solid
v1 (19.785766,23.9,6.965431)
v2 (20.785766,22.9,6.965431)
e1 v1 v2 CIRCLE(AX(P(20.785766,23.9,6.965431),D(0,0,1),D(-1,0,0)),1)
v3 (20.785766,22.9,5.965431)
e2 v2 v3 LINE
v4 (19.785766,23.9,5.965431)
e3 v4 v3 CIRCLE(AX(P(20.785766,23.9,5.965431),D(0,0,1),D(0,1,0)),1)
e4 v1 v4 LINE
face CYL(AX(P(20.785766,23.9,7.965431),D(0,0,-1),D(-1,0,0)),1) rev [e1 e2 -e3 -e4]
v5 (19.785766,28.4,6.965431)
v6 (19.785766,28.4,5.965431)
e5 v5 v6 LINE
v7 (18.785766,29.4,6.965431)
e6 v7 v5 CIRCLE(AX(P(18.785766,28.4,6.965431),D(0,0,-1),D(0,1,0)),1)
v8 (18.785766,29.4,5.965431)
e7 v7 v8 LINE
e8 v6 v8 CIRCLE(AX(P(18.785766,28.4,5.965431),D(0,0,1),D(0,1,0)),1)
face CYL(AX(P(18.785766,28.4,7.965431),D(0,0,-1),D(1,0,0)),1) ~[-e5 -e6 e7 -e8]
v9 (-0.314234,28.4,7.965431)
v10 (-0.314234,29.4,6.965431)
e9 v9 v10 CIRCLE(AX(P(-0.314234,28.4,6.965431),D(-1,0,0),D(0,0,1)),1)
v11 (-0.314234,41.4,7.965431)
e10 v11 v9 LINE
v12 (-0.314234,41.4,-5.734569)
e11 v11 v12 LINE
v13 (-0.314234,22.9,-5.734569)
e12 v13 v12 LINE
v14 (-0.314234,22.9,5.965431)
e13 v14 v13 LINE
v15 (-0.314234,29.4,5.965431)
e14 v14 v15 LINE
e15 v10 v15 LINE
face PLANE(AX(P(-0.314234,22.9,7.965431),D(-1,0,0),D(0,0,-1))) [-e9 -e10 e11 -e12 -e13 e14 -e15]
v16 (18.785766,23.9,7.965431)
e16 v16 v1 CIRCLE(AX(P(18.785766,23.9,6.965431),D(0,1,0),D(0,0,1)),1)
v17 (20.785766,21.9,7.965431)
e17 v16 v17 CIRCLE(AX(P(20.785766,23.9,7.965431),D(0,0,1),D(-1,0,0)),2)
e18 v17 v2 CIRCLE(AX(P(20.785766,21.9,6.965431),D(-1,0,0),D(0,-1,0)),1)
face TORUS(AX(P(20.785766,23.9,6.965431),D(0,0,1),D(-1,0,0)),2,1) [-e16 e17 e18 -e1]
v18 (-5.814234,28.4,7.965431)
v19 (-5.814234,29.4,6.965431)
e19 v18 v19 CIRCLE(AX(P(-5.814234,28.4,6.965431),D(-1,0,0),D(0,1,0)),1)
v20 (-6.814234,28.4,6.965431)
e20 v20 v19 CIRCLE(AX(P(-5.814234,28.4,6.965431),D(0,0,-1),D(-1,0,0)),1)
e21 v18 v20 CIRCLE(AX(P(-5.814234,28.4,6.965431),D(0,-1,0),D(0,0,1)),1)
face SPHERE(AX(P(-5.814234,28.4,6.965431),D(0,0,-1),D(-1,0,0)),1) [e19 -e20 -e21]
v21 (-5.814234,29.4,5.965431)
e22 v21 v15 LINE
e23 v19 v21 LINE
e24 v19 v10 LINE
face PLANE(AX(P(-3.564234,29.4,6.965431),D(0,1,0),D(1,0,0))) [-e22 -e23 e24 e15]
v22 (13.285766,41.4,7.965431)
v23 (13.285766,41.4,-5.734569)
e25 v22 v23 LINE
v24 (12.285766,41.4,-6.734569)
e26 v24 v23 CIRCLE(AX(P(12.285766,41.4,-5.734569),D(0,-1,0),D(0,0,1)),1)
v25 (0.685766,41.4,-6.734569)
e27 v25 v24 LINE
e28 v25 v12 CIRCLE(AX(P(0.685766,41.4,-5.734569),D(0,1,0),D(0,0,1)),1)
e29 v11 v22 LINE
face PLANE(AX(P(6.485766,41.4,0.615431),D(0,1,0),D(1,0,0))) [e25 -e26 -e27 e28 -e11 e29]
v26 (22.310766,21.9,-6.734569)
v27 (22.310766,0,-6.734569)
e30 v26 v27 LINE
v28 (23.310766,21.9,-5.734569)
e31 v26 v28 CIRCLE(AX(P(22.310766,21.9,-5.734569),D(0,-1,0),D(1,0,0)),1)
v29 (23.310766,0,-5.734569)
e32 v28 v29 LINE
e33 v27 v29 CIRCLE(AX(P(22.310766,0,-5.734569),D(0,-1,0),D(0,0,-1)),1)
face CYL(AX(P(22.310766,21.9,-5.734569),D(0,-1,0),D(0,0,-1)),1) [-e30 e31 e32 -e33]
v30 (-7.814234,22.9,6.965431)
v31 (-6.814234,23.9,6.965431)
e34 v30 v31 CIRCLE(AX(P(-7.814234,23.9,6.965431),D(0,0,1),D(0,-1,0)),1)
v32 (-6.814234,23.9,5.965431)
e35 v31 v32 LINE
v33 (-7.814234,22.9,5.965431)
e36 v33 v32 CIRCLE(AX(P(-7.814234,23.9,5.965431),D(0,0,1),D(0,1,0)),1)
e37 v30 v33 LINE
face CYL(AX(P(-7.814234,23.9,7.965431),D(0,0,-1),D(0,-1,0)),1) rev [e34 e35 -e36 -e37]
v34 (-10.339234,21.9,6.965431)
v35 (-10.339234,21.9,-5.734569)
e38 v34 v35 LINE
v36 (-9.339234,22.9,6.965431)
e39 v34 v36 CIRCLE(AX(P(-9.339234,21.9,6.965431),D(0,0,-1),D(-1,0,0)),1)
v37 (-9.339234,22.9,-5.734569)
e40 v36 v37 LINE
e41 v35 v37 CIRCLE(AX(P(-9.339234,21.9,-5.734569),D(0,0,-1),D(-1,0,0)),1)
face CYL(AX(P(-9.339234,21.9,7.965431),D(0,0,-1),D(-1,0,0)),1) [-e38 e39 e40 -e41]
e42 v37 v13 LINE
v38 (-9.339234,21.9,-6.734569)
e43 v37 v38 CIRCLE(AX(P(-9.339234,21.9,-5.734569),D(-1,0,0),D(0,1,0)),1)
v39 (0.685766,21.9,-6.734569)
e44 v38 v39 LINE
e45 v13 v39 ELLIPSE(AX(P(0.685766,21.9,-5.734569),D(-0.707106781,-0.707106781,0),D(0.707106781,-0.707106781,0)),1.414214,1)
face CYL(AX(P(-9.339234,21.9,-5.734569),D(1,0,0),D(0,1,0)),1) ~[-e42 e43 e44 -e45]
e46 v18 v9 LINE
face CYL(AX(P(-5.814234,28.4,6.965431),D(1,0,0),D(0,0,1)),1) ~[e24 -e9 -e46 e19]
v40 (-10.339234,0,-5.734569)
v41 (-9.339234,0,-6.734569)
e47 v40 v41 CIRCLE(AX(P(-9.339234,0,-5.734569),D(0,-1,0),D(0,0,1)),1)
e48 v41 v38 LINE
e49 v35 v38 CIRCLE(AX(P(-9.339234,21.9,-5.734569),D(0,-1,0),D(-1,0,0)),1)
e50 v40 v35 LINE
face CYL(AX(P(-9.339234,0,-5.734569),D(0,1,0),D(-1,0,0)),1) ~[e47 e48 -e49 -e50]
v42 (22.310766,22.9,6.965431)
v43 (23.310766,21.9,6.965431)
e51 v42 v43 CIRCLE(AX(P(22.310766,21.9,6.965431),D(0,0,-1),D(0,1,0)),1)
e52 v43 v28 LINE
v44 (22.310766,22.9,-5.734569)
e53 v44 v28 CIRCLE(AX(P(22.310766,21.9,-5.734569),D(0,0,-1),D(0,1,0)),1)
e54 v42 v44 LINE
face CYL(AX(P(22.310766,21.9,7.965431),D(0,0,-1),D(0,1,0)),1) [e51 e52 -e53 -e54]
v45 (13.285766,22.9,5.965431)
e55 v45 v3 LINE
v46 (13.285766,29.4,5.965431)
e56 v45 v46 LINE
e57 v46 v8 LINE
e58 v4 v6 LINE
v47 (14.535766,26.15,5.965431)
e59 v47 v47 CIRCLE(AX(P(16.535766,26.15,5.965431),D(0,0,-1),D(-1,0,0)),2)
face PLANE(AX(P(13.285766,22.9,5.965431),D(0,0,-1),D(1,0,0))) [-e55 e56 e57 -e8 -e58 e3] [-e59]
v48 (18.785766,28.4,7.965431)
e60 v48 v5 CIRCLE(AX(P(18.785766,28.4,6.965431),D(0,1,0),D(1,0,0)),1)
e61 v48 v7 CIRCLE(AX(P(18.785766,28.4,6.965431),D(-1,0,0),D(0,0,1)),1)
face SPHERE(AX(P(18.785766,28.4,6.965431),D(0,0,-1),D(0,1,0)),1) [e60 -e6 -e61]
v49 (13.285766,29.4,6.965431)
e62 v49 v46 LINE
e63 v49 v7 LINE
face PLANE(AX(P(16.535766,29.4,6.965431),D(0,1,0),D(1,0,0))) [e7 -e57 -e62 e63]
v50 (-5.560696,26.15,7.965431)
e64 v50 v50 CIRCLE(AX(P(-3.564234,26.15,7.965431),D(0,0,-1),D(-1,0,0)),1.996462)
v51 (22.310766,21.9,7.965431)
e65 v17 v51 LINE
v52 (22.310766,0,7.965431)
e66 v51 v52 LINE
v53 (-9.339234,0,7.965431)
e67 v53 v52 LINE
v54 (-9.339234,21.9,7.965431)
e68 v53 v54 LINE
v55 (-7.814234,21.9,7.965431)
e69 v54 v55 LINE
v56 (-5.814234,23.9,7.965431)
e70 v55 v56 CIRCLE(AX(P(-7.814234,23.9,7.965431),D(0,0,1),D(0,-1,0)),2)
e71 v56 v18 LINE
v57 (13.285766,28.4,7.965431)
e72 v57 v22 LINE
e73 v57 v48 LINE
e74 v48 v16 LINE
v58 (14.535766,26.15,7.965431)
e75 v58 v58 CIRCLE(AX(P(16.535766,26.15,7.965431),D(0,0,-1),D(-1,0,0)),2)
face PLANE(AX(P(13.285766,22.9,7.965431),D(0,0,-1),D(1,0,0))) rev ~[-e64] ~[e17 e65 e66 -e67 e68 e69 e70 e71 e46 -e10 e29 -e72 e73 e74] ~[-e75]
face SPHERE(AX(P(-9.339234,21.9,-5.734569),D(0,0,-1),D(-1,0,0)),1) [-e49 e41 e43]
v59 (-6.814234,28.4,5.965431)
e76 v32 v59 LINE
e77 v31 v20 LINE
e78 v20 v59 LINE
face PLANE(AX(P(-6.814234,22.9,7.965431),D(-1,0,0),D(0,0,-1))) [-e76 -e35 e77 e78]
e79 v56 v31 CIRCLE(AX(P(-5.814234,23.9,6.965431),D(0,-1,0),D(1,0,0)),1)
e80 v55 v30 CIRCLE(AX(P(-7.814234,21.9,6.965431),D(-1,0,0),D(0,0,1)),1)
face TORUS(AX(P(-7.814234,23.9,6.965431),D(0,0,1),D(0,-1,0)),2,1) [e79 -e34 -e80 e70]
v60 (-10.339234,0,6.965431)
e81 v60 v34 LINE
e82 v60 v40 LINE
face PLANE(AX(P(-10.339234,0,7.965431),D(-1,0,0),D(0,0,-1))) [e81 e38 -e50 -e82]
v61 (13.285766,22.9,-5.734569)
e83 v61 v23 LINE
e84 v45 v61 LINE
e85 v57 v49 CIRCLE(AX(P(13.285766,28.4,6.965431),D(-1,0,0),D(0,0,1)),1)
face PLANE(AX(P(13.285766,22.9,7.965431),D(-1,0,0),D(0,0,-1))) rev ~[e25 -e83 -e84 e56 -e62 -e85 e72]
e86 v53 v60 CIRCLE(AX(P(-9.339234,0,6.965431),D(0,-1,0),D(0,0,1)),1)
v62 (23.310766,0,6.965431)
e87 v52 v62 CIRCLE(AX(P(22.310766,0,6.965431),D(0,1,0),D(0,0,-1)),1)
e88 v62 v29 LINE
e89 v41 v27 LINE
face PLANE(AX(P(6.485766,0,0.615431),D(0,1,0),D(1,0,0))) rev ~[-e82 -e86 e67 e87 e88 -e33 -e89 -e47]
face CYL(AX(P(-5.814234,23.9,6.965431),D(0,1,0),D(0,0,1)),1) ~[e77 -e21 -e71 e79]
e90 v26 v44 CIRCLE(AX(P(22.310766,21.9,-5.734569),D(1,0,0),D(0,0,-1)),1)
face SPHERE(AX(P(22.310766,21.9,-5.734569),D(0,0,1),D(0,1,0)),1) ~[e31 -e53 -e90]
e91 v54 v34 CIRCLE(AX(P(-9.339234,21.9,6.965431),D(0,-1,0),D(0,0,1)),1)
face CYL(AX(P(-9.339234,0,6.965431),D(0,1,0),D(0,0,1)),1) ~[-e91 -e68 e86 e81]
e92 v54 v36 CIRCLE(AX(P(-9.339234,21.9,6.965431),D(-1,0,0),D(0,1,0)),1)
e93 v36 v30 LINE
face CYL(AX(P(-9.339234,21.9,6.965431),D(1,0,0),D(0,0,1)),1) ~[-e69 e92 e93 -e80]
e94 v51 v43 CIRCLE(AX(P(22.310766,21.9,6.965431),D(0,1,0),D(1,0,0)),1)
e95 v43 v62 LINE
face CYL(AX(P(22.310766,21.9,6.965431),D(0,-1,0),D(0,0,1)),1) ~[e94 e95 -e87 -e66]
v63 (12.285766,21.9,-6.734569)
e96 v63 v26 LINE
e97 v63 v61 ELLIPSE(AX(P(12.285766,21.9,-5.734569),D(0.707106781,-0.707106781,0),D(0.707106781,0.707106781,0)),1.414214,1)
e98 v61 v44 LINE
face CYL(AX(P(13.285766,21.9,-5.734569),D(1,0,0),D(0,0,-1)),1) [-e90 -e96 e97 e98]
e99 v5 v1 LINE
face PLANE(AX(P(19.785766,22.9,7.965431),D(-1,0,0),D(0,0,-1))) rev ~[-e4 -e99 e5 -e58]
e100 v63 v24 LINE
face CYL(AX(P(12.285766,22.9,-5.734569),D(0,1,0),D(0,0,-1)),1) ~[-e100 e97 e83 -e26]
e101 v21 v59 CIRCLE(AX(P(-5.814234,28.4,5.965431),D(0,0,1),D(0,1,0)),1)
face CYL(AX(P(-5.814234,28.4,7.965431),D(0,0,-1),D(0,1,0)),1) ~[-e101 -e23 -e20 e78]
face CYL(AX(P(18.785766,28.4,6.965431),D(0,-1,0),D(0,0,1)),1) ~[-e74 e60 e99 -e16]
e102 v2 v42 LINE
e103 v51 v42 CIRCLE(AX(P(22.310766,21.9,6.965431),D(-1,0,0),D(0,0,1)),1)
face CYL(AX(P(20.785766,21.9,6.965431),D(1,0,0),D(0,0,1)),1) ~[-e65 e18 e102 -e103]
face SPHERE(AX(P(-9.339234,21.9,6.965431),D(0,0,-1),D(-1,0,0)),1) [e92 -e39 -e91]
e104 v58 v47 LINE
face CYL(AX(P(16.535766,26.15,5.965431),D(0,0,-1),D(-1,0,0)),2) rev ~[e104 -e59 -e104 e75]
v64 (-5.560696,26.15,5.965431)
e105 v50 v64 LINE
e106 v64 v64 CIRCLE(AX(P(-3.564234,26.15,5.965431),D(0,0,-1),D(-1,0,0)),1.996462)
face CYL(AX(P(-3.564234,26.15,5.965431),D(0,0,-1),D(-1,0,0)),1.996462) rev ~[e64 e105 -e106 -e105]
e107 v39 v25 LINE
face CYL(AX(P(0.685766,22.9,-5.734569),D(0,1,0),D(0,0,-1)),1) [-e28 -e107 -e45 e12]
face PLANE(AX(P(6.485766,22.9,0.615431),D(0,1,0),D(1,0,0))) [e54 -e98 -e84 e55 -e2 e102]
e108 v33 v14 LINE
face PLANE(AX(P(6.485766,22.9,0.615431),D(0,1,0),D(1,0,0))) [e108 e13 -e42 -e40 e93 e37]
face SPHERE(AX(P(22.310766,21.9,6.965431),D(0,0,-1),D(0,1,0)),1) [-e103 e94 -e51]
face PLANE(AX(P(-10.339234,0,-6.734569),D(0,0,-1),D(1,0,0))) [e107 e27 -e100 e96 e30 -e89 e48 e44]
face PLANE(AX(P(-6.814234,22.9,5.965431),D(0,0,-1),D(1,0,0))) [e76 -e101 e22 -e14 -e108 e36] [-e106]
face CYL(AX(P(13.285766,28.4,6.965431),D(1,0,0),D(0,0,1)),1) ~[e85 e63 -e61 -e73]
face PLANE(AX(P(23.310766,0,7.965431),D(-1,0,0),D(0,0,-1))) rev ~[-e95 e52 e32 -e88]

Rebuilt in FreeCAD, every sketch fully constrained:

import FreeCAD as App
import Part
import Sketcher

V = App.Vector


def edges_at(feature, points):
    """Names of the edges that pass closest to the given points."""
    edges = feature.Shape.Edges
    near = lambda p: min(range(len(edges)), key=lambda i: edges[i].distToShape(Part.Vertex(*p))[0])
    return sorted({f"Edge{near(p) + 1}" for p in points})


def add_polygon(sketch, points):
    """Adds a closed chain of lines whose ends are joined by coincident constraints."""
    first, n = sketch.GeometryCount, len(points)
    for a, b in zip(points, points[1:] + points[:1]):
        sketch.addGeometry(Part.LineSegment(App.Vector(*a, 0), App.Vector(*b, 0)), False)
    for i in range(n):
        sketch.addConstraint(Sketcher.Constraint("Coincident", first + i, 2, first + (i + 1) % n, 1))

doc = App.newDocument("Part")
body = doc.addObject("PartDesign::Body", "Body")

sketch1 = body.newObject("Sketcher::SketchObject", "Sketch")
sketch1.AttachmentSupport = (doc.getObject("XZ_Plane"), [""])
sketch1.MapMode = "FlatFace"
add_polygon(sketch1, [(-10, -7), (-10, 8), (23, 8), (23, -7)])
sketch1.addConstraint([
    Sketcher.Constraint("Vertical", 0),
    Sketcher.Constraint("Horizontal", 1),
    Sketcher.Constraint("Vertical", 2),
    Sketcher.Constraint("Horizontal", 3),
    Sketcher.Constraint("DistanceY", 0, 1, 0, 2, 14.7),
    Sketcher.Constraint("DistanceX", 1, 1, 1, 2, 33.65),
    Sketcher.Constraint("DistanceY", -1, 1, 0, 2, 7.965431),
    Sketcher.Constraint("DistanceX", 0, 2, -1, 1, 10.339234),
])
pad1 = body.newObject("PartDesign::Pad", "Pad")
pad1.Profile = sketch1
pad1.Length = 22.9
pad1.Reversed = True

sketch2 = body.newObject("Sketcher::SketchObject", "Sketch001")
sketch2.AttachmentSupport = (doc.getObject("XZ_Plane"), [""])
sketch2.MapMode = "FlatFace"
sketch2.AttachmentOffset = App.Placement(V(0, 0, -22.9), App.Rotation())
add_polygon(sketch2, [(0, -7), (0, 8), (13, 8), (13, -7)])
sketch2.addConstraint([
    Sketcher.Constraint("Vertical", 0),
    Sketcher.Constraint("Horizontal", 1),
    Sketcher.Constraint("Vertical", 2),
    Sketcher.Constraint("Horizontal", 3),
    Sketcher.Constraint("DistanceX", 1, 1, 1, 2, 13.6),
    Sketcher.Constraint("DistanceY", 0, 1, 0, 2, 14.7),
    Sketcher.Constraint("DistanceY", -1, 1, 0, 2, 7.965431),
    Sketcher.Constraint("DistanceX", 0, 2, -1, 1, 0.314234),
])
pad2 = body.newObject("PartDesign::Pad", "Pad001")
pad2.Profile = sketch2
pad2.Length = 18.5
pad2.Reversed = True

sketch3 = body.newObject("Sketcher::SketchObject", "Sketch002")
sketch3.AttachmentSupport = (doc.getObject("XZ_Plane"), [""])
sketch3.MapMode = "FlatFace"
sketch3.AttachmentOffset = App.Placement(V(0, 0, -22.9), App.Rotation())
add_polygon(sketch3, [(-6.8, 6), (-6.8, 8), (-0.3, 8), (-0.3, 6)])
sketch3.addConstraint([
    Sketcher.Constraint("Vertical", 0),
    Sketcher.Constraint("Horizontal", 1),
    Sketcher.Constraint("Vertical", 2),
    Sketcher.Constraint("Horizontal", 3),
    Sketcher.Constraint("DistanceY", 0, 1, 0, 2, 2.0),
    Sketcher.Constraint("DistanceX", 1, 1, 1, 2, 6.5),
    Sketcher.Constraint("DistanceY", -1, 1, 0, 2, 7.965431),
    Sketcher.Constraint("DistanceX", 0, 2, -1, 1, 6.814234),
])
pad3 = body.newObject("PartDesign::Pad", "Pad002")
pad3.Profile = sketch3
pad3.Length = 6.5
pad3.Reversed = True

sketch4 = body.newObject("Sketcher::SketchObject", "Sketch003")
sketch4.AttachmentSupport = (doc.getObject("XZ_Plane"), [""])
sketch4.MapMode = "FlatFace"
sketch4.AttachmentOffset = App.Placement(V(0, 0, -22.9), App.Rotation())
add_polygon(sketch4, [(13.3, 6), (13.3, 8), (19.8, 8), (19.8, 6)])
sketch4.addConstraint([
    Sketcher.Constraint("Vertical", 0),
    Sketcher.Constraint("Horizontal", 1),
    Sketcher.Constraint("Vertical", 2),
    Sketcher.Constraint("Horizontal", 3),
    Sketcher.Constraint("DistanceY", 0, 1, 0, 2, 2.0),
    Sketcher.Constraint("DistanceX", 1, 1, 1, 2, 6.5),
    Sketcher.Constraint("DistanceY", -1, 1, 0, 2, 7.965431),
    Sketcher.Constraint("DistanceX", -1, 1, 0, 2, 13.285766),
])
pad4 = body.newObject("PartDesign::Pad", "Pad003")
pad4.Profile = sketch4
pad4.Length = 6.5
pad4.Reversed = True

sketch5 = body.newObject("Sketcher::SketchObject", "Sketch004")
sketch5.AttachmentSupport = (doc.getObject("XY_Plane"), [""])
sketch5.MapMode = "FlatFace"
sketch5.AttachmentOffset = App.Placement(V(0, 0, 5.965431), App.Rotation())
sketch5.addGeometry(Part.Circle(V(-3.6, 26.1, 0), V(0, 0, 1), 2), False)
sketch5.addConstraint([
    Sketcher.Constraint("DistanceY", -1, 1, 0, 3, 26.15),
    Sketcher.Constraint("Diameter", 0, 3.992923),
    Sketcher.Constraint("DistanceX", 0, 3, -1, 1, 3.564234),
])
pocket1 = body.newObject("PartDesign::Pocket", "Pocket")
pocket1.Profile = sketch5
pocket1.Length = 7.5
pocket1.Midplane = True

sketch6 = body.newObject("Sketcher::SketchObject", "Sketch005")
sketch6.AttachmentSupport = (doc.getObject("XY_Plane"), [""])
sketch6.MapMode = "FlatFace"
sketch6.AttachmentOffset = App.Placement(V(0, 0, 5.965431), App.Rotation())
sketch6.addGeometry(Part.Circle(V(16.5, 26.1, 0), V(0, 0, 1), 2), False)
sketch6.addConstraint([
    Sketcher.Constraint("Diameter", 0, 4.0),
    Sketcher.Constraint("DistanceY", -1, 1, 0, 3, 26.15),
    Sketcher.Constraint("DistanceX", -1, 1, 0, 3, 16.535766),
])
pocket2 = body.newObject("PartDesign::Pocket", "Pocket001")
pocket2.Profile = sketch6
pocket2.Length = 7.5
pocket2.Midplane = True
doc.recompute()

fillet = body.newObject("PartDesign::Fillet", "Fillet")
fillet.Base = (pocket2, edges_at(pocket2, [
    (23.311, 22.9, 0.615),
    (-6.814, 22.9, 6.965),
    (-6.814, 29.4, 6.965),
    (19.786, 22.9, 6.965),
    (19.786, 29.4, 6.965),
    (-10.339, 22.9, 0.615),
]))
fillet.Radius = 1
doc.recompute()

fillet2 = body.newObject("PartDesign::Fillet", "Fillet001")
fillet2.Base = (fillet, edges_at(fillet, [
    (-4.827, 22.9, -6.735),
    (-0.314, 32.15, -6.735),
    (13.286, 32.15, -6.735),
    (16.036, 29.4, 7.965),
    (19.786, 26.15, 7.965),
    (21.548, 22.9, 7.965),
    (17.798, 22.9, -6.735),
    (-6.814, 26.15, 7.965),
    (-8.577, 22.9, 7.965),
    (-3.064, 29.4, 7.965),
    (-10.339, 10.95, 7.965),
    (23.311, 10.95, 7.965),
    (23.018, 22.607, 7.965),
    (-10.046, 22.607, 7.965),
    (-6.521, 29.107, 7.965),
    (19.493, 29.107, 7.965),
    (-10.339, 10.95, -6.735),
    (23.311, 10.95, -6.735),
    (23.018, 22.607, -6.735),
    (-10.046, 22.607, -6.735),
    (20.079, 23.193, 7.965),
    (-7.107, 23.193, 7.965),
]))
fillet2.Radius = 1

doc.recompute()
